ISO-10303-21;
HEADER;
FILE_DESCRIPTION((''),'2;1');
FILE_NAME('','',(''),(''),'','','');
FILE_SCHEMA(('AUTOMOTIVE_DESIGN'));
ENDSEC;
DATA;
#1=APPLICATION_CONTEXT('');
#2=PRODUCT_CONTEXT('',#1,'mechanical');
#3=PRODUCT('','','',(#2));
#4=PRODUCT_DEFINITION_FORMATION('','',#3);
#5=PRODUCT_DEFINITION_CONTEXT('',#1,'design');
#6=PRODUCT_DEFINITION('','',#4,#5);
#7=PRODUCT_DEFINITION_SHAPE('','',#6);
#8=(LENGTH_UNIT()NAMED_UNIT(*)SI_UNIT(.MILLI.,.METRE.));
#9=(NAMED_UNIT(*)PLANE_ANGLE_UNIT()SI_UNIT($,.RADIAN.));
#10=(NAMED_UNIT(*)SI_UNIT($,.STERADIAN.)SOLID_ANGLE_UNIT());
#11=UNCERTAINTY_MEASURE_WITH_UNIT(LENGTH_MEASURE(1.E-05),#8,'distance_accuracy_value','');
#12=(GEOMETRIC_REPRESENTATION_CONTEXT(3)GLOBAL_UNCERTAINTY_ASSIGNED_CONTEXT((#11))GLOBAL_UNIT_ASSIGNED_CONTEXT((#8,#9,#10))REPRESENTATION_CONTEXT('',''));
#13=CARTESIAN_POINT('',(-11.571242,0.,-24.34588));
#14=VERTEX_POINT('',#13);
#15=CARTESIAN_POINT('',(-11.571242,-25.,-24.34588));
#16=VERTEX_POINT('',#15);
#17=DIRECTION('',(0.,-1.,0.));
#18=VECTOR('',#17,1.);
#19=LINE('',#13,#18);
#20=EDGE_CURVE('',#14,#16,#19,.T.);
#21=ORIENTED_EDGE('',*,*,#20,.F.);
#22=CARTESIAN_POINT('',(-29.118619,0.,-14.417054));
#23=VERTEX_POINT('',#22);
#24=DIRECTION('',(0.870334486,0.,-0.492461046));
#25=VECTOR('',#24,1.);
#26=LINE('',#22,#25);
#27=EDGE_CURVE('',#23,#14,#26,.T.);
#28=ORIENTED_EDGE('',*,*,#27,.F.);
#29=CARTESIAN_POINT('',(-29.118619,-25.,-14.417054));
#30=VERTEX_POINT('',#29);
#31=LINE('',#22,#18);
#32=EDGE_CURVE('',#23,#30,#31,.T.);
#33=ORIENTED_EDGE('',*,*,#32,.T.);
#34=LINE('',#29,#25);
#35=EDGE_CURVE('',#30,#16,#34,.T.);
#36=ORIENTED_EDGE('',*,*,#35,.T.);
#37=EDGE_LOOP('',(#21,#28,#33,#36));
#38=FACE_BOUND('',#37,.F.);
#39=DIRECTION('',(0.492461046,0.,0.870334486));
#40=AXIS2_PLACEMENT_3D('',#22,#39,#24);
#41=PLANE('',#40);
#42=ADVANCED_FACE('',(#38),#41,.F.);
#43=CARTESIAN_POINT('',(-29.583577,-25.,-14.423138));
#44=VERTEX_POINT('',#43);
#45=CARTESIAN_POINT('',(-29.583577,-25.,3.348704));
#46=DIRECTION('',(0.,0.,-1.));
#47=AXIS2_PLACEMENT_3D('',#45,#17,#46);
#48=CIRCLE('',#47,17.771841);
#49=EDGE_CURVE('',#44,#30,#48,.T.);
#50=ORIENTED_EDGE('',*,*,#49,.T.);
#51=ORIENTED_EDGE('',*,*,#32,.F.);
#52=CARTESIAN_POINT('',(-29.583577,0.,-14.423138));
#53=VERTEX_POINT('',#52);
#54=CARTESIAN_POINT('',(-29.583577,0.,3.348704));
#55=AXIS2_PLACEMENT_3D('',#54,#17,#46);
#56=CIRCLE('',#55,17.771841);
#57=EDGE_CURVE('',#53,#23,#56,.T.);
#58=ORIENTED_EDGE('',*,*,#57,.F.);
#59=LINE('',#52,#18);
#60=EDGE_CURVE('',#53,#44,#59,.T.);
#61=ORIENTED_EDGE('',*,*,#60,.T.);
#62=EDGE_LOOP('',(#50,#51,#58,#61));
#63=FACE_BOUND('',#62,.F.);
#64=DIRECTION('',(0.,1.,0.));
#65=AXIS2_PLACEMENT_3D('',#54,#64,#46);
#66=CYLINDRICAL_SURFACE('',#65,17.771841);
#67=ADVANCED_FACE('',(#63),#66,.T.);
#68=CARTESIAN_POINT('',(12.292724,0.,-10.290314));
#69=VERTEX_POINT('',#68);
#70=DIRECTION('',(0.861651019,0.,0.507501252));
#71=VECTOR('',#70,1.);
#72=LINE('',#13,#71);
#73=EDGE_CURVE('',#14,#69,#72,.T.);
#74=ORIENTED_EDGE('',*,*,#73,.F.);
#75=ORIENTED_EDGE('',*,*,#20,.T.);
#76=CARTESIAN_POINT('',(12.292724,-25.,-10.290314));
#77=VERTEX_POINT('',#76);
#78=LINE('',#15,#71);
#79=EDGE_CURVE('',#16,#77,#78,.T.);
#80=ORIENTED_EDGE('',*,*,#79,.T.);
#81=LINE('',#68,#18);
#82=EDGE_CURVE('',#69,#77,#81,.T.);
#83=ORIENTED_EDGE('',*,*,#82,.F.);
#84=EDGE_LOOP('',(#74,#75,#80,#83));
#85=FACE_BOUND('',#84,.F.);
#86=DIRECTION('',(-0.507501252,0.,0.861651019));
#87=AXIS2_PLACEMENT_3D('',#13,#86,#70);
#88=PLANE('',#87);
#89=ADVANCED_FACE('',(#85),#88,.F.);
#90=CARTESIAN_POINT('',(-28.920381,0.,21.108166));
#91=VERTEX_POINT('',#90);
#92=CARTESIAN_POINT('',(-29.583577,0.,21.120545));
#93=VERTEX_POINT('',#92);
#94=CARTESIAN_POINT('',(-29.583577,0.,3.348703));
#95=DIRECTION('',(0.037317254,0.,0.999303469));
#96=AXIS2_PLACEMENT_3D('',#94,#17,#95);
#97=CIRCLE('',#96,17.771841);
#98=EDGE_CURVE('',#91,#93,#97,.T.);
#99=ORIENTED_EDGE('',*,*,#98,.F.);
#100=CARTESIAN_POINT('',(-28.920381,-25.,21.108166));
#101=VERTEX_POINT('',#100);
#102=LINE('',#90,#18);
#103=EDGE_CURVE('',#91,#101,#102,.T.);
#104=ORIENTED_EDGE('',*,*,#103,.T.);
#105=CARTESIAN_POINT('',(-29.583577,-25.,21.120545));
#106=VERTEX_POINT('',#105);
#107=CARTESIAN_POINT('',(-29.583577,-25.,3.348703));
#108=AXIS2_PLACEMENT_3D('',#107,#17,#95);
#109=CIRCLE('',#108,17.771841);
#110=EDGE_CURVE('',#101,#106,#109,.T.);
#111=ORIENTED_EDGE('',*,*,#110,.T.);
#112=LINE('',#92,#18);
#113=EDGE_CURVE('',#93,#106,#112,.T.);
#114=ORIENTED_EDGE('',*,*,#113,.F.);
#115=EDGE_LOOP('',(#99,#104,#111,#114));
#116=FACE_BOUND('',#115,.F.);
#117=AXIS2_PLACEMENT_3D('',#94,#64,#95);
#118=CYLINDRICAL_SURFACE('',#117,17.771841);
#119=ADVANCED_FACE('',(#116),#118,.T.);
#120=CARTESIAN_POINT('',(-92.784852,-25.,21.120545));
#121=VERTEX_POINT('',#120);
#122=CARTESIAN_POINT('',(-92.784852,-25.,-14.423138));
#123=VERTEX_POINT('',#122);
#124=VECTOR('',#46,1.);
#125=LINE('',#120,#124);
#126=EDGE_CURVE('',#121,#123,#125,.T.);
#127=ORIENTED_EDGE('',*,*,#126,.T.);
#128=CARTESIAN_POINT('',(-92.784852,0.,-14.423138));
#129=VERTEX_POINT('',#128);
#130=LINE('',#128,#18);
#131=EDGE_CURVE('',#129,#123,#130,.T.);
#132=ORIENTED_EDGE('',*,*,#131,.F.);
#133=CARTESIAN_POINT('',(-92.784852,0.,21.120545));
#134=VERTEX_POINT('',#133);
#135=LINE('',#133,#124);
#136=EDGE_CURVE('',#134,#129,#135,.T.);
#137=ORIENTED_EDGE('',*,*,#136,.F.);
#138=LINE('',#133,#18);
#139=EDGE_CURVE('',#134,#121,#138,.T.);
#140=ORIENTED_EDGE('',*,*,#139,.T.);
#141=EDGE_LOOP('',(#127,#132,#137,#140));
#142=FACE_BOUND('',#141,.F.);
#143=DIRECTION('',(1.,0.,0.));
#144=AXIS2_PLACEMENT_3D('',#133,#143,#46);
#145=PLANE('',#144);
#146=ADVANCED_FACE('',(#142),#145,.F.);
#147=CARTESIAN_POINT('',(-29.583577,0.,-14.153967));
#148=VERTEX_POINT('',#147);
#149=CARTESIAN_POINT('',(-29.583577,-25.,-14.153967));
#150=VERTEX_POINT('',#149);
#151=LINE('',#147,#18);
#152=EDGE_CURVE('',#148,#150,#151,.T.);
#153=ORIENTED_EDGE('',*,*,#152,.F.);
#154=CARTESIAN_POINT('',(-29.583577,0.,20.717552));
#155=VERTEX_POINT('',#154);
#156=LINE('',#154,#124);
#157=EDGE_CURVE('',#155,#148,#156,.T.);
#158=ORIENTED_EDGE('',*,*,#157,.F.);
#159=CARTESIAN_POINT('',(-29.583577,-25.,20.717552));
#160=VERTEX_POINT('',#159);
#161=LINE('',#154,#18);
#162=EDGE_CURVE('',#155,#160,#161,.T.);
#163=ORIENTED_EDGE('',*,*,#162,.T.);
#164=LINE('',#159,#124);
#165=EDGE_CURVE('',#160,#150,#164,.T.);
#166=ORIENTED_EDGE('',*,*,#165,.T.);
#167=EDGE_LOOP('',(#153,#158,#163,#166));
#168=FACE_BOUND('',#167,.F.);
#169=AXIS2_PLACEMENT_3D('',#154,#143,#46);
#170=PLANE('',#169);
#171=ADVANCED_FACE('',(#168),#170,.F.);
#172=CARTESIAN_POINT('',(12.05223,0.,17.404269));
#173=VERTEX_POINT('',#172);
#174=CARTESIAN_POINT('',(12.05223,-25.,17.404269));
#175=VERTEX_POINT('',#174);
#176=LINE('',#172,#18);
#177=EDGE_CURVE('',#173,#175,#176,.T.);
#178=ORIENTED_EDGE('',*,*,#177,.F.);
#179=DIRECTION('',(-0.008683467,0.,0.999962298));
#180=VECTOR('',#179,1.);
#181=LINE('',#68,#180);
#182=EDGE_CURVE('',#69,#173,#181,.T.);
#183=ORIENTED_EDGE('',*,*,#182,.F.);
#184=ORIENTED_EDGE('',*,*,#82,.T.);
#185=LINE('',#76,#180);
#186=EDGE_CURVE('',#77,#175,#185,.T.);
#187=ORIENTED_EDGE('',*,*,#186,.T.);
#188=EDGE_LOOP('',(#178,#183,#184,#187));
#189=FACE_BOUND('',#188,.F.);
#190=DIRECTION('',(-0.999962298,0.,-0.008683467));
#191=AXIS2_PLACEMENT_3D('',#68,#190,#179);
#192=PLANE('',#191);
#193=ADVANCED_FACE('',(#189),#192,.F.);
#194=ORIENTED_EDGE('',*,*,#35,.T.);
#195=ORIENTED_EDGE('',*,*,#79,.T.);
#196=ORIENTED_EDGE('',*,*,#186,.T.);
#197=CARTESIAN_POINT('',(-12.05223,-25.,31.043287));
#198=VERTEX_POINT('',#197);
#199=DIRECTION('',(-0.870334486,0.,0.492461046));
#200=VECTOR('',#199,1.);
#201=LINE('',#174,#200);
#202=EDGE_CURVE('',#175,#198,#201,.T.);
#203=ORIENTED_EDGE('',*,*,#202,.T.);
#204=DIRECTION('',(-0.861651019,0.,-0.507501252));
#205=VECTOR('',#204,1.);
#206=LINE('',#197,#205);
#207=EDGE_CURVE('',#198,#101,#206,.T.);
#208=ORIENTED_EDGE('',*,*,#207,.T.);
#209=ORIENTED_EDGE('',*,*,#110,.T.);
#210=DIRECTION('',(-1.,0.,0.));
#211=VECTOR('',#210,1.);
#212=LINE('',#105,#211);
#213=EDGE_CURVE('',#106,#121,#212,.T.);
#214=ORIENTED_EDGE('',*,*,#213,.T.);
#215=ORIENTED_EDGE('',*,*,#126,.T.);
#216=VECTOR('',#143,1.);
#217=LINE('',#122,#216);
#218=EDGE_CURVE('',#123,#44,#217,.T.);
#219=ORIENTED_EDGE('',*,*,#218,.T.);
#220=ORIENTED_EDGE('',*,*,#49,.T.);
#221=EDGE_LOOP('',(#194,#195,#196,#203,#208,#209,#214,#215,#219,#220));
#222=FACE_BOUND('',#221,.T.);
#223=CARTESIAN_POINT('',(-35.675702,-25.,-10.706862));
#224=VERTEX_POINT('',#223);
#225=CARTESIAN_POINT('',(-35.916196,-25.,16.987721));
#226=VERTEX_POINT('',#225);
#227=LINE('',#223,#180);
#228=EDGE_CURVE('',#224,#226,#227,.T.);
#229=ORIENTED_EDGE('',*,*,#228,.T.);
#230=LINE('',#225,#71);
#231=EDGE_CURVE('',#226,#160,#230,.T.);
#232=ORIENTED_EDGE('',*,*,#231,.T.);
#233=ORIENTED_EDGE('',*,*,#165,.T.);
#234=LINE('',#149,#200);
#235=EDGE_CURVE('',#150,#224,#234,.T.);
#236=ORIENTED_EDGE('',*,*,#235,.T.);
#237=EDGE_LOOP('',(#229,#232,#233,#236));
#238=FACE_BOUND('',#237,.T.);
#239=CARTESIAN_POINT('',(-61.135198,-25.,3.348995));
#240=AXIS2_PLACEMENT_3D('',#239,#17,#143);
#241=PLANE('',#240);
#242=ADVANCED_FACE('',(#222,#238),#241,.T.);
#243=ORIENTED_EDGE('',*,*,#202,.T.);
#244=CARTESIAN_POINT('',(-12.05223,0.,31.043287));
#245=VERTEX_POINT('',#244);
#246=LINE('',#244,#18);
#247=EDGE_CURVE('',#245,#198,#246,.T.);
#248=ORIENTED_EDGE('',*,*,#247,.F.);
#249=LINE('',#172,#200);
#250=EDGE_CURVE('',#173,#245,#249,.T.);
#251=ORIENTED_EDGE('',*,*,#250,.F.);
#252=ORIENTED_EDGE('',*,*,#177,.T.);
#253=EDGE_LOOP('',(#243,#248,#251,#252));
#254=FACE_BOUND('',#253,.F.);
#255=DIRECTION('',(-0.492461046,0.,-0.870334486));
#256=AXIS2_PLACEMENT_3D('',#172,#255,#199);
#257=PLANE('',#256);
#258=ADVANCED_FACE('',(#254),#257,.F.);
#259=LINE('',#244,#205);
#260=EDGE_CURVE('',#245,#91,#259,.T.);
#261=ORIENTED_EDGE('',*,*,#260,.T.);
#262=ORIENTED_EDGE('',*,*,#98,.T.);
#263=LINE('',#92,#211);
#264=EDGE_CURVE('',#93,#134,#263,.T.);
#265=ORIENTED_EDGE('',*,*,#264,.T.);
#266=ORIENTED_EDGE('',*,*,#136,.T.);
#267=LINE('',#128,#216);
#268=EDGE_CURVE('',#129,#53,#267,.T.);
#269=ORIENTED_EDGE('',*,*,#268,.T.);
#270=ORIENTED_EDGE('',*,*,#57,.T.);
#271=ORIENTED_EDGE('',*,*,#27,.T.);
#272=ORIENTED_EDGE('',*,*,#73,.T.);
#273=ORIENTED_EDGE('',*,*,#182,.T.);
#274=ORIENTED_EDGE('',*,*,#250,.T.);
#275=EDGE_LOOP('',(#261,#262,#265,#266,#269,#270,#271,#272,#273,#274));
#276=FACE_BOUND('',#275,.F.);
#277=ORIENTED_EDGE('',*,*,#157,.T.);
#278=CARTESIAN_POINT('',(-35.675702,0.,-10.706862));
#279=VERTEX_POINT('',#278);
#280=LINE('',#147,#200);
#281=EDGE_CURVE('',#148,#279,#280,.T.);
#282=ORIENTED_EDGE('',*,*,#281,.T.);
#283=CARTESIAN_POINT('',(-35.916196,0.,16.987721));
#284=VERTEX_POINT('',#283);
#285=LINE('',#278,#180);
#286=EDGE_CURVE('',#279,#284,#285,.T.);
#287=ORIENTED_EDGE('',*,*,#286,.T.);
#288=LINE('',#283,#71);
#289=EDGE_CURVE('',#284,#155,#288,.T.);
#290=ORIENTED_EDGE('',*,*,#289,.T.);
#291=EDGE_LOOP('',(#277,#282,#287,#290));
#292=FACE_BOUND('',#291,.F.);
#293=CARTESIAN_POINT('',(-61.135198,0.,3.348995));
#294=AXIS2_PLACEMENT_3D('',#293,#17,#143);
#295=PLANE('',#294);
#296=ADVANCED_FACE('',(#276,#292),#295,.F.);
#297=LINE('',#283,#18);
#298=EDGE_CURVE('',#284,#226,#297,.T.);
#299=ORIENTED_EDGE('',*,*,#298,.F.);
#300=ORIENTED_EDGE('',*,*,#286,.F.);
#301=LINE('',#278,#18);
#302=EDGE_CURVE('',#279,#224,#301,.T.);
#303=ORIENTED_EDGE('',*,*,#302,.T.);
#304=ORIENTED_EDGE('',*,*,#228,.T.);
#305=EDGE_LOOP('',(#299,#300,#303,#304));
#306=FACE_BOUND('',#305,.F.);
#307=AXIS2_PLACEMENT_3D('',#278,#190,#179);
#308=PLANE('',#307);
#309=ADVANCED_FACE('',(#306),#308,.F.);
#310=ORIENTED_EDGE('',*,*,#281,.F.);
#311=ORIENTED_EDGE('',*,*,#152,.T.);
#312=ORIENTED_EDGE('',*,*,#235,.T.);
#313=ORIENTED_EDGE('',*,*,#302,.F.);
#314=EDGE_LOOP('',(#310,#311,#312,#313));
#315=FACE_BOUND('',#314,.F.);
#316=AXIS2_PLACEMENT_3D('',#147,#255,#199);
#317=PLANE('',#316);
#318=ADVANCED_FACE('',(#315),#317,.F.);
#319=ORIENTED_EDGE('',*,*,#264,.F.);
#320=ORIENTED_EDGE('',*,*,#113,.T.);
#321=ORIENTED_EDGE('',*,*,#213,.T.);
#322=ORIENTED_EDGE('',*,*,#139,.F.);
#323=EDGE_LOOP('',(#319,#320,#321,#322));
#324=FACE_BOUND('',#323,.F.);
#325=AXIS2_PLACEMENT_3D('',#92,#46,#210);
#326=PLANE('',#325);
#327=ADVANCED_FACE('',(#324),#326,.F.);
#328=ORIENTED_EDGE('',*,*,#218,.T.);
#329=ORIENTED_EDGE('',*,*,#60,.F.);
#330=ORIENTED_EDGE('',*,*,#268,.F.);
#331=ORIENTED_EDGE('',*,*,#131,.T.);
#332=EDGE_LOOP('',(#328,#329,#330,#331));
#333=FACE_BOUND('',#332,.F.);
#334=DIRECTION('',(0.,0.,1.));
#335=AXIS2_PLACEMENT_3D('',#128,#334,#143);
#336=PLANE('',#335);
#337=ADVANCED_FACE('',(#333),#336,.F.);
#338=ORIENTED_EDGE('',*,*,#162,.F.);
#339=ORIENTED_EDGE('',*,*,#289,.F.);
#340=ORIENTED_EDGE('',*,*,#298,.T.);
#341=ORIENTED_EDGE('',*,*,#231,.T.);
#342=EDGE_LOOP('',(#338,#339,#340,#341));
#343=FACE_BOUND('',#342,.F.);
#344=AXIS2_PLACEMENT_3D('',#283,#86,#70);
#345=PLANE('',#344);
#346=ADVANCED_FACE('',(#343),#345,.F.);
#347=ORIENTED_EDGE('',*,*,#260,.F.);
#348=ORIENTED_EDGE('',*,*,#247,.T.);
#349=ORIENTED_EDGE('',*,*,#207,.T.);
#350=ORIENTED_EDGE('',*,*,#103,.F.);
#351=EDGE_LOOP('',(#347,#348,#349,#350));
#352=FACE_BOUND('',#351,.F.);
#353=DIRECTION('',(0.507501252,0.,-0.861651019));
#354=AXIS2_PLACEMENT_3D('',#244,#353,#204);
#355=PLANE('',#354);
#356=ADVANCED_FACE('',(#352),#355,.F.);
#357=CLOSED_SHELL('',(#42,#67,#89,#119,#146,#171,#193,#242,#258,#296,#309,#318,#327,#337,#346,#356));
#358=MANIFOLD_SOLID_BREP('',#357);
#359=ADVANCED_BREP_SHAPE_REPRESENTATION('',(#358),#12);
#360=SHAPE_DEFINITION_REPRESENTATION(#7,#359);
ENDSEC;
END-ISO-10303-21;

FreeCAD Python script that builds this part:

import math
import FreeCAD as App
import Part
import Sketcher


def add_polygon(sketch, points):
    """Adds a closed chain of lines whose ends are joined by coincident constraints."""
    first, n = sketch.GeometryCount, len(points)
    for a, b in zip(points, points[1:] + points[:1]):
        sketch.addGeometry(Part.LineSegment(App.Vector(*a, 0), App.Vector(*b, 0)), False)
    for i in range(n):
        sketch.addConstraint(Sketcher.Constraint("Coincident", first + i, 2, first + (i + 1) % n, 1))

doc = App.newDocument("Part")
params = doc.addObject("Spreadsheet::Sheet", "Params")
for row, (alias, value) in enumerate([
    ("pad1_length", "25 mm"),
], start=1):
    params.set(f"A{row}", alias)
    params.set(f"B{row}", "=" + value)
    params.setAlias(f"B{row}", alias)

body = doc.addObject("PartDesign::Body", "Body")

# Sketch on XZ plane
sketch1 = body.newObject("Sketcher::SketchObject", "Sketch")
sketch1.AttachmentSupport = (doc.getObject("XZ_Plane"), [""])
sketch1.MapMode = "FlatFace"
sketch1.addGeometry(Part.LineSegment(App.Vector(-29.58, 21.12, 0), App.Vector(-92.78, 21.12, 0)), False)  # 0
sketch1.addGeometry(Part.LineSegment(App.Vector(-92.78, 21.12, 0), App.Vector(-92.78, -14.42, 0)), False)  # 1
sketch1.addGeometry(Part.LineSegment(App.Vector(-92.78, -14.42, 0), App.Vector(-29.58, -14.42, 0)), False)  # 2
sketch1.addGeometry(Part.ArcOfCircle(Part.Circle(App.Vector(-29.58, 3.35, 0), App.Vector(0, 0, 1), 17.77), math.radians(-90), math.radians(-88.5)), False)  # 3
sketch1.addGeometry(Part.LineSegment(App.Vector(-29.12, -14.42, 0), App.Vector(-11.57, -24.35, 0)), False)  # 4
sketch1.addGeometry(Part.LineSegment(App.Vector(-11.57, -24.35, 0), App.Vector(12.29, -10.29, 0)), False)  # 5
sketch1.addGeometry(Part.LineSegment(App.Vector(12.29, -10.29, 0), App.Vector(12.05, 17.4, 0)), False)  # 6
sketch1.addGeometry(Part.LineSegment(App.Vector(12.05, 17.4, 0), App.Vector(-12.05, 31.04, 0)), False)  # 7
sketch1.addGeometry(Part.LineSegment(App.Vector(-12.05, 31.04, 0), App.Vector(-28.92, 21.11, 0)), False)  # 8
sketch1.addGeometry(Part.ArcOfCircle(Part.Circle(App.Vector(-29.58, 3.35, 0), App.Vector(0, 0, 1), 17.77), math.radians(87.86), math.radians(90)), False)  # 9
add_polygon(sketch1, [(-29.58, -14.15), (-35.68, -10.71), (-35.92, 16.99), (-29.58, 20.72)])  # lines 10-13
sketch1.addConstraint(Sketcher.Constraint("Coincident", 0, 2, 1, 1))
sketch1.addConstraint(Sketcher.Constraint("Coincident", 1, 2, 2, 1))
sketch1.addConstraint(Sketcher.Constraint("Tangent", 2, 2, 3, 1))
sketch1.addConstraint(Sketcher.Constraint("Coincident", 3, 2, 4, 1))
sketch1.addConstraint(Sketcher.Constraint("Coincident", 4, 2, 5, 1))
sketch1.addConstraint(Sketcher.Constraint("Coincident", 5, 2, 6, 1))
sketch1.addConstraint(Sketcher.Constraint("Coincident", 6, 2, 7, 1))
sketch1.addConstraint(Sketcher.Constraint("Coincident", 7, 2, 8, 1))
sketch1.addConstraint(Sketcher.Constraint("Coincident", 8, 2, 9, 1))
sketch1.addConstraint(Sketcher.Constraint("Tangent", 9, 2, 0, 1))
sketch1.addConstraint(Sketcher.Constraint("Horizontal", 0))
sketch1.addConstraint(Sketcher.Constraint("Vertical", 1))
sketch1.addConstraint(Sketcher.Constraint("Horizontal", 2))
sketch1.addConstraint(Sketcher.Constraint("Vertical", 13))
sketch1.addConstraint(Sketcher.Constraint("Coincident", 9, 3, 3, 3))
sketch1.addConstraint(Sketcher.Constraint("Equal", 3, 9))
sketch1.addConstraint(Sketcher.Constraint("Parallel", 4, 7))
sketch1.addConstraint(Sketcher.Constraint("Parallel", 5, 8))
sketch1.addConstraint(Sketcher.Constraint("Parallel", 7, 10))
sketch1.addConstraint(Sketcher.Constraint("Parallel", 6, 11))
sketch1.addConstraint(Sketcher.Constraint("Parallel", 8, 12))
sketch1.addConstraint(Sketcher.Constraint("Vertical", 9, 2, 12, 2))
sketch1.addConstraint(Sketcher.Constraint("Equal", 5, 6))
sketch1.addConstraint(Sketcher.Constraint("Equal", 6, 7))
sketch1.addConstraint(Sketcher.Constraint("Equal", 7, 11))
sketch1.addConstraint(Sketcher.Constraint("Radius", 3, 17.771841))
sketch1.addConstraint(Sketcher.Constraint("Distance", 12, 7.349401))
sketch1.addConstraint(Sketcher.Constraint("DistanceY", 13, 2, 13, 1, 34.871519))
sketch1.addConstraint(Sketcher.Constraint("DistanceY", 3, 2, 0, 2, 35.537599))
sketch1.addConstraint(Sketcher.Constraint("DistanceX", 2, 2, 5, 2, 41.876301))
sketch1.addConstraint(Sketcher.Constraint("DistanceY", 5, 2, 7, 2, 41.333602))
sketch1.addConstraint(Sketcher.Constraint("Distance", 5, 27.695628))
sketch1.addConstraint(Sketcher.Constraint("Distance", 10, 6.999751))
sketch1.addConstraint(Sketcher.Constraint("DistanceX", 0, 2, 0, 1, 63.201275))
sketch1.addConstraint(Sketcher.Constraint("DistanceX", 0, 2, -1, 1, 92.784852))
sketch1.addConstraint(Sketcher.Constraint("DistanceY", 4, 2, -1, 1, 24.34588))
sketch1.addConstraint(Sketcher.Constraint("DistanceY", -1, 1, 11, 2, 16.987721))
pad1 = body.newObject("PartDesign::Pad", "Pad")
pad1.Profile = sketch1
pad1.setExpression("Length", "Params.pad1_length")

doc.recompute()
